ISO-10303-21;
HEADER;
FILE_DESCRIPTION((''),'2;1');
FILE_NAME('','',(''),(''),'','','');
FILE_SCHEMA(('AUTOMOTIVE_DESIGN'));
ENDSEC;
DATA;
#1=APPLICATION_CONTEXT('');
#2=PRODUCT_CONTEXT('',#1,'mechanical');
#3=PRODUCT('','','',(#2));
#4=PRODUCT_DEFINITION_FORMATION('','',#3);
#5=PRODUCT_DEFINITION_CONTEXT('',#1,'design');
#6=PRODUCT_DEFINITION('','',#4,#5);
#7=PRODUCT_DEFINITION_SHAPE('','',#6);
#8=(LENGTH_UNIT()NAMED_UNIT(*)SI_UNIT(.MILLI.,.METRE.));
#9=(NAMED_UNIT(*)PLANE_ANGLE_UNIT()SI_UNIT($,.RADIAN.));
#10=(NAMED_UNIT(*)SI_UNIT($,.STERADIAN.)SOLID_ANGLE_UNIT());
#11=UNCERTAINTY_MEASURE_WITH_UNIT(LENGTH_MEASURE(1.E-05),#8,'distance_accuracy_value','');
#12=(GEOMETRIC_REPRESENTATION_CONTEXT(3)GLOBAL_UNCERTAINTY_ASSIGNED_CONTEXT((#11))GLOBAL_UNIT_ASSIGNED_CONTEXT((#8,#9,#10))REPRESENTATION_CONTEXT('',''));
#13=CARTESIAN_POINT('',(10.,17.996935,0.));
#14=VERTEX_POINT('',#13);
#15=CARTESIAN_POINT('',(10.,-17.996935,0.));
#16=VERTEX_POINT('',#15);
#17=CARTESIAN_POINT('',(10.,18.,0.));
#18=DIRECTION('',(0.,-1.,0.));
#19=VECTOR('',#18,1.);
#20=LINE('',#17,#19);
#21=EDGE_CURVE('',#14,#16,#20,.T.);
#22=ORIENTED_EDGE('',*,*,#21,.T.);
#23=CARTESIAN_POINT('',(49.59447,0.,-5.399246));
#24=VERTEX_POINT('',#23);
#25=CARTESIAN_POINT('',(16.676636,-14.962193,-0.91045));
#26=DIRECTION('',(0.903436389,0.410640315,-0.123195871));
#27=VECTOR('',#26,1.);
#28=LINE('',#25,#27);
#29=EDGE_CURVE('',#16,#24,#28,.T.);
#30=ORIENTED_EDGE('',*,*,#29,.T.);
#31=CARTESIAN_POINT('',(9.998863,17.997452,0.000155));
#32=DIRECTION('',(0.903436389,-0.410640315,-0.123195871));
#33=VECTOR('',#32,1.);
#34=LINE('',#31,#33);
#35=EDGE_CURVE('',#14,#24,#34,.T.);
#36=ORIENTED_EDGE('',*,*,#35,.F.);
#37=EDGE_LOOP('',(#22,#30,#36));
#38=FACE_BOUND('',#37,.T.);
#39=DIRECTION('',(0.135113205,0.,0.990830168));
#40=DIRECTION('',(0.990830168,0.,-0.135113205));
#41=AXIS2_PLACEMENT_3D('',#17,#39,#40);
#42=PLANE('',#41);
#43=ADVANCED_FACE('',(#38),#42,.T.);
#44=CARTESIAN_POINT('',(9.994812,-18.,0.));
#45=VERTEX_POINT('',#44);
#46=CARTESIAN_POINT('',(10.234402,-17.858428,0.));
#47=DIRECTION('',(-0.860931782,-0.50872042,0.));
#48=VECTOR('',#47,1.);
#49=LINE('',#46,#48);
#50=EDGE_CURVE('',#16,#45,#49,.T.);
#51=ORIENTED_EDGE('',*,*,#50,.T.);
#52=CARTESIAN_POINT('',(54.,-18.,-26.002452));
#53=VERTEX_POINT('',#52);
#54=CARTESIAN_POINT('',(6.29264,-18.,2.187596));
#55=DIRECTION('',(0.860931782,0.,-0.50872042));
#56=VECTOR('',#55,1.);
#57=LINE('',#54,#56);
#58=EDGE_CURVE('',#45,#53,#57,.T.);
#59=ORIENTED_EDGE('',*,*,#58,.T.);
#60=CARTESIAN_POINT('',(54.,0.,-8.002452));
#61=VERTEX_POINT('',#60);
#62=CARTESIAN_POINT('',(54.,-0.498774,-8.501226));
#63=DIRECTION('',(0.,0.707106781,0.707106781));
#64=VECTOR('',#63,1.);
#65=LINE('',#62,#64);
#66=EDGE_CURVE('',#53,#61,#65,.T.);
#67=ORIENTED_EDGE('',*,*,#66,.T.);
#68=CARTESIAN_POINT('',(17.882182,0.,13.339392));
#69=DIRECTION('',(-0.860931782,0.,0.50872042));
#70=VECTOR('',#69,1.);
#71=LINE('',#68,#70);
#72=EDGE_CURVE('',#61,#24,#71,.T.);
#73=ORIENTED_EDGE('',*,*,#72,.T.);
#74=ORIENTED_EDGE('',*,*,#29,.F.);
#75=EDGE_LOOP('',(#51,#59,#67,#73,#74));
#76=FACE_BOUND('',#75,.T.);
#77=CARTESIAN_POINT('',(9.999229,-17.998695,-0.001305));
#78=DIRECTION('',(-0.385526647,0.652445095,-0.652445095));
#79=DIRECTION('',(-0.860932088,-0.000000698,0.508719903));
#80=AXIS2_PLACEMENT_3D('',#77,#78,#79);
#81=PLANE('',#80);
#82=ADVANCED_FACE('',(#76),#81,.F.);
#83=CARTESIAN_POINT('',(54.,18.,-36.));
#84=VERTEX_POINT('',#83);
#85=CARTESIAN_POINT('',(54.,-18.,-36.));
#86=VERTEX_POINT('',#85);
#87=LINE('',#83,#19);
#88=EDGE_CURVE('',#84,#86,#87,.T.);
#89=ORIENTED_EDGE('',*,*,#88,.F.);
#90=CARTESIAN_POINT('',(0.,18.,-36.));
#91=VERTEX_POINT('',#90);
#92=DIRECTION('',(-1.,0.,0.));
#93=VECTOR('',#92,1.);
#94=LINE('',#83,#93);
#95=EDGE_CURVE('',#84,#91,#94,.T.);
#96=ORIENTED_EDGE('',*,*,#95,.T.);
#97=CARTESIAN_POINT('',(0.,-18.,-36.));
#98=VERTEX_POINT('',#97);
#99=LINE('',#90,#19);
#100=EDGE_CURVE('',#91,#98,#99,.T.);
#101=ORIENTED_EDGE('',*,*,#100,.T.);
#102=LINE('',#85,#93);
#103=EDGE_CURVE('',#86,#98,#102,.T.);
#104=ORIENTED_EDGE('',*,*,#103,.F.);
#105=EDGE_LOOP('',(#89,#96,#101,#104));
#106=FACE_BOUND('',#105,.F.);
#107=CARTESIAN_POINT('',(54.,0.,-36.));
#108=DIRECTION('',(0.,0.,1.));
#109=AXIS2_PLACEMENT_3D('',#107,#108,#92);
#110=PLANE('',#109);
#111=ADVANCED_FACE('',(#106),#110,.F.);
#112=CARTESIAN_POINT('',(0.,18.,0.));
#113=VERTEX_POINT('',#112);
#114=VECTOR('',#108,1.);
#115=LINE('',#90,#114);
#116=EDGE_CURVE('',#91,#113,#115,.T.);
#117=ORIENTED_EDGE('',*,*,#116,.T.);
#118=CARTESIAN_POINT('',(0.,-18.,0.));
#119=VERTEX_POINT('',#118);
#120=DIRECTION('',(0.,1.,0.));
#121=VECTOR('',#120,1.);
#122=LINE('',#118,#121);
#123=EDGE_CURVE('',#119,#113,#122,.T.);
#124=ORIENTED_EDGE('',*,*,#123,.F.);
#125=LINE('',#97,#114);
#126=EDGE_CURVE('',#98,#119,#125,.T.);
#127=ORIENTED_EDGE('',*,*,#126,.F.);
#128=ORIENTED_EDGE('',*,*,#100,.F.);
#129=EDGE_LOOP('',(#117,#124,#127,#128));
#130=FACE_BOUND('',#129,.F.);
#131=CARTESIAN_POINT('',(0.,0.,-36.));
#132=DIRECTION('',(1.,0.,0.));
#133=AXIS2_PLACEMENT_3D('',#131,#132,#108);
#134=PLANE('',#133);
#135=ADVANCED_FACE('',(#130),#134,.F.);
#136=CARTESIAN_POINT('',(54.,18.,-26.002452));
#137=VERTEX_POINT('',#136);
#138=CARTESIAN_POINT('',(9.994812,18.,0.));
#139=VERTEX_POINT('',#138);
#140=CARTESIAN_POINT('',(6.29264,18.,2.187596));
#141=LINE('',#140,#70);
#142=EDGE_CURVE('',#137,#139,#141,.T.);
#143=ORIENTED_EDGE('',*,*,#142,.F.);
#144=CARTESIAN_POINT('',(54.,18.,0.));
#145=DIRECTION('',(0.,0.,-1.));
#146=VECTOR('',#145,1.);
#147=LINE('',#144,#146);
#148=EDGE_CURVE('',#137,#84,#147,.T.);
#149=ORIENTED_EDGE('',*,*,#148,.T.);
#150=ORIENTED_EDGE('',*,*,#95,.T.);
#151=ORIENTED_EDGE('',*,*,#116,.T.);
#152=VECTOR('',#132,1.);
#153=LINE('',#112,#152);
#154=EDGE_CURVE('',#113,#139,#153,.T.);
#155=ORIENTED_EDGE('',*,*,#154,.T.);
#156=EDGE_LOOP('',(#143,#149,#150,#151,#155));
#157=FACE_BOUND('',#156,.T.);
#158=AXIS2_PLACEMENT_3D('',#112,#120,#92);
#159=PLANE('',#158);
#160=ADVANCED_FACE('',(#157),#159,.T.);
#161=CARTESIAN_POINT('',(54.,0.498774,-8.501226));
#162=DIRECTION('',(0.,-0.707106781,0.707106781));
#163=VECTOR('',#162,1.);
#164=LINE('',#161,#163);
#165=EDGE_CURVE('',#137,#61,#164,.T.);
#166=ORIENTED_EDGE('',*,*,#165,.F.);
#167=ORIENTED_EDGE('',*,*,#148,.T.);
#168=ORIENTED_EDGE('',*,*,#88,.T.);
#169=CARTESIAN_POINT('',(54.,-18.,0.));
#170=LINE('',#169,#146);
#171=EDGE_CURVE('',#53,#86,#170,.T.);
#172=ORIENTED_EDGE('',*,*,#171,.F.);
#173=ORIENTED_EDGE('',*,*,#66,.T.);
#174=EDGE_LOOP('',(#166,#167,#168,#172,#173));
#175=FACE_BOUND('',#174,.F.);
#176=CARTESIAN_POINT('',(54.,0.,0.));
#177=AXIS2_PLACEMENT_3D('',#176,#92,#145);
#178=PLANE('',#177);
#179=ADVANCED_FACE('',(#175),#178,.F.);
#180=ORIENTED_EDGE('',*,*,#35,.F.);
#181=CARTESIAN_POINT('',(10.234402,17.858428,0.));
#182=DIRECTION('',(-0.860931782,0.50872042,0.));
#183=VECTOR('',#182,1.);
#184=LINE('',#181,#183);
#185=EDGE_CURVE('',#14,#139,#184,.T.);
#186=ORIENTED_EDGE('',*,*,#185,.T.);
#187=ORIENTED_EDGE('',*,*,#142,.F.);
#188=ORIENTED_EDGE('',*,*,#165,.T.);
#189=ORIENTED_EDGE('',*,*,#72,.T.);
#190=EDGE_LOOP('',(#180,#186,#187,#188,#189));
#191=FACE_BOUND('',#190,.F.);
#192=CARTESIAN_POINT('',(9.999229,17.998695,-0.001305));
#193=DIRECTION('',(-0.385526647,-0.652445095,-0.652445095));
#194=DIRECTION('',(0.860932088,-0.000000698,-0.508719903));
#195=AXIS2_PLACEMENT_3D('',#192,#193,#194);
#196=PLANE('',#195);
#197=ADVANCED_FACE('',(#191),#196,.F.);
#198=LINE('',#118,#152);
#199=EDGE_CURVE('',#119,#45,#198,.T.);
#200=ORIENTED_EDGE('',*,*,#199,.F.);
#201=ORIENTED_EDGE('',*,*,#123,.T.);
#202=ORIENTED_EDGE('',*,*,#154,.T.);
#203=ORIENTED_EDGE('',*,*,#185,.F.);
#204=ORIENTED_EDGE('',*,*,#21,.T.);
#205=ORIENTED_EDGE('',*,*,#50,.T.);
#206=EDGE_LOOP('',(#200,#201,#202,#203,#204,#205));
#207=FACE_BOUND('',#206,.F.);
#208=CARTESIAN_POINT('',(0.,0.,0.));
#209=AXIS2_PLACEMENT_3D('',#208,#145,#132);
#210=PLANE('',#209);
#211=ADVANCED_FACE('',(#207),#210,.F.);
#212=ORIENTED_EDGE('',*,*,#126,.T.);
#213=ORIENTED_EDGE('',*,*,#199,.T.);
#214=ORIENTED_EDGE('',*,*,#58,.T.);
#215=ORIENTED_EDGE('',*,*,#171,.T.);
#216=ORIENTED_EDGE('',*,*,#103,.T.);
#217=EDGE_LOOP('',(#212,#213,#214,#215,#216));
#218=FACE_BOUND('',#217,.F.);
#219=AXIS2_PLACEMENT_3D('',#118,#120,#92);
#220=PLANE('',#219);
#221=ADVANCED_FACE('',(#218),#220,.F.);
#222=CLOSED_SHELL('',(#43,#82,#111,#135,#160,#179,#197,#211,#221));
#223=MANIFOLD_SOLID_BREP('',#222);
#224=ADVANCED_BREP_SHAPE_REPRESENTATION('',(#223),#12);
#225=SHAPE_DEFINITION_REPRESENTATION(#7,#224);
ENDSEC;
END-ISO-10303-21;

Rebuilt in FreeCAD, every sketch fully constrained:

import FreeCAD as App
import Part
import Sketcher

V = App.Vector
Q = App.Units.Quantity


def add_polygon(sketch, points):
    """Adds a closed chain of lines whose ends are joined by coincident constraints."""
    first, n = sketch.GeometryCount, len(points)
    for a, b in zip(points, points[1:] + points[:1]):
        sketch.addGeometry(Part.LineSegment(App.Vector(*a, 0), App.Vector(*b, 0)), False)
    for i in range(n):
        sketch.addConstraint(Sketcher.Constraint("Coincident", first + i, 2, first + (i + 1) % n, 1))

doc = App.newDocument("Part")
params = doc.addObject("Spreadsheet::Sheet", "Params")
for row, (alias, value) in enumerate([
    ("sketch1_width", "54 mm"),
    ("sketch1_height", "36 mm"),
    ("pad1_length", "36 mm"),
    ("sketch2_width", "44 mm"),
    ("sketch2_height", "6 mm"),
    ("pocket1_length", "40 mm"),
    ("pocket2_length", "40 mm"),
], start=1):
    params.set(f"A{row}", alias)
    params.set(f"B{row}", "=" + value)
    params.setAlias(f"B{row}", alias)

body = doc.addObject("PartDesign::Body", "Body")

sketch1 = body.newObject("Sketcher::SketchObject", "Sketch")
sketch1.AttachmentSupport = (doc.getObject("XZ_Plane"), [""])
sketch1.MapMode = "FlatFace"
add_polygon(sketch1, [(0, -36), (0, 0), (54, 0), (54, -36)])
sketch1.addConstraint([
    Sketcher.Constraint("Vertical", 0),
    Sketcher.Constraint("Horizontal", 1),
    Sketcher.Constraint("Vertical", 2),
    Sketcher.Constraint("Horizontal", 3),
    Sketcher.Constraint("Coincident", 0, 2, -1, 1),
    Sketcher.Constraint("DistanceX", 1, 1, 1, 2, Q("54 mm")),
    Sketcher.Constraint("DistanceY", 0, 1, 0, 2, Q("36 mm")),
])
sketch1.setExpression("Constraints[9]", "Params.sketch1_width")
sketch1.setExpression("Constraints[10]", "Params.sketch1_height")
pad1 = body.newObject("PartDesign::Pad", "Pad")
pad1.Profile = sketch1
pad1.setExpression("Length", "Params.pad1_length")
pad1.Midplane = True

sketch2 = body.newObject("Sketcher::SketchObject", "Sketch001")
sketch2.AttachmentSupport = (doc.getObject("XZ_Plane"), [""])
sketch2.MapMode = "FlatFace"
sketch2.AttachmentOffset = App.Placement(V(0, 0, -18), App.Rotation())
add_polygon(sketch2, [(54, -6), (10, 0), (54, 0)])
sketch2.addConstraint([
    Sketcher.Constraint("Horizontal", 1),
    Sketcher.Constraint("Vertical", 2),
    Sketcher.Constraint("PointOnObject", 0, 2, -1),
    Sketcher.Constraint("DistanceX", -1, 1, 0, 2, Q("10 mm")),
    Sketcher.Constraint("DistanceX", 1, 1, 1, 2, Q("44 mm")),
    Sketcher.Constraint("DistanceY", 2, 2, 2, 1, Q("6 mm")),
])
sketch2.setExpression("Constraints[7]", "Params.sketch2_width")
sketch2.setExpression("Constraints[8]", "Params.sketch2_height")
pocket1 = body.newObject("PartDesign::Pocket", "Pocket")
pocket1.Profile = sketch2
pocket1.setExpression("Length", "Params.pocket1_length")
pocket1.Reversed = True

sketch3 = body.newObject("Sketcher::SketchObject", "Sketch002")
sketch3.Placement = App.Placement(V(10, 18, 0), App.Rotation(V(0.860932088, -0.000000698, -0.508719903), V(0.33191135, -0.757835996, 0.561711187), V(-0.385526647, -0.652445095, -0.652445095), "ZXY"))
add_polygon(sketch3, [(-15, 29), (-15, -12), (94, -12), (94, 29)])
sketch3.addConstraint([
    Sketcher.Constraint("Vertical", 0),
    Sketcher.Constraint("Horizontal", 1),
    Sketcher.Constraint("Vertical", 2),
    Sketcher.Constraint("Horizontal", 3),
    Sketcher.Constraint("DistanceX", 1, 1, 1, 2, Q("108.8713 mm")),
    Sketcher.Constraint("DistanceY", 0, 2, 0, 1, Q("41.1384 mm")),
    Sketcher.Constraint("DistanceX", -1, 1, 1, 2, Q("93.717 mm")),
    Sketcher.Constraint("DistanceY", 0, 2, -1, 1, Q("12.3218 mm")),
])
pocket2 = body.newObject("PartDesign::Pocket", "Pocket001")
pocket2.Profile = sketch3
pocket2.setExpression("Length", "Params.pocket2_length")
doc.recompute()

mirrored = body.newObject("PartDesign::Mirrored", "Mirrored")
mirrored.Originals = [pocket2]
mirrored.MirrorPlane = (doc.getObject("XZ_Plane"), [""])
body.Tip = mirrored

doc.recompute()
